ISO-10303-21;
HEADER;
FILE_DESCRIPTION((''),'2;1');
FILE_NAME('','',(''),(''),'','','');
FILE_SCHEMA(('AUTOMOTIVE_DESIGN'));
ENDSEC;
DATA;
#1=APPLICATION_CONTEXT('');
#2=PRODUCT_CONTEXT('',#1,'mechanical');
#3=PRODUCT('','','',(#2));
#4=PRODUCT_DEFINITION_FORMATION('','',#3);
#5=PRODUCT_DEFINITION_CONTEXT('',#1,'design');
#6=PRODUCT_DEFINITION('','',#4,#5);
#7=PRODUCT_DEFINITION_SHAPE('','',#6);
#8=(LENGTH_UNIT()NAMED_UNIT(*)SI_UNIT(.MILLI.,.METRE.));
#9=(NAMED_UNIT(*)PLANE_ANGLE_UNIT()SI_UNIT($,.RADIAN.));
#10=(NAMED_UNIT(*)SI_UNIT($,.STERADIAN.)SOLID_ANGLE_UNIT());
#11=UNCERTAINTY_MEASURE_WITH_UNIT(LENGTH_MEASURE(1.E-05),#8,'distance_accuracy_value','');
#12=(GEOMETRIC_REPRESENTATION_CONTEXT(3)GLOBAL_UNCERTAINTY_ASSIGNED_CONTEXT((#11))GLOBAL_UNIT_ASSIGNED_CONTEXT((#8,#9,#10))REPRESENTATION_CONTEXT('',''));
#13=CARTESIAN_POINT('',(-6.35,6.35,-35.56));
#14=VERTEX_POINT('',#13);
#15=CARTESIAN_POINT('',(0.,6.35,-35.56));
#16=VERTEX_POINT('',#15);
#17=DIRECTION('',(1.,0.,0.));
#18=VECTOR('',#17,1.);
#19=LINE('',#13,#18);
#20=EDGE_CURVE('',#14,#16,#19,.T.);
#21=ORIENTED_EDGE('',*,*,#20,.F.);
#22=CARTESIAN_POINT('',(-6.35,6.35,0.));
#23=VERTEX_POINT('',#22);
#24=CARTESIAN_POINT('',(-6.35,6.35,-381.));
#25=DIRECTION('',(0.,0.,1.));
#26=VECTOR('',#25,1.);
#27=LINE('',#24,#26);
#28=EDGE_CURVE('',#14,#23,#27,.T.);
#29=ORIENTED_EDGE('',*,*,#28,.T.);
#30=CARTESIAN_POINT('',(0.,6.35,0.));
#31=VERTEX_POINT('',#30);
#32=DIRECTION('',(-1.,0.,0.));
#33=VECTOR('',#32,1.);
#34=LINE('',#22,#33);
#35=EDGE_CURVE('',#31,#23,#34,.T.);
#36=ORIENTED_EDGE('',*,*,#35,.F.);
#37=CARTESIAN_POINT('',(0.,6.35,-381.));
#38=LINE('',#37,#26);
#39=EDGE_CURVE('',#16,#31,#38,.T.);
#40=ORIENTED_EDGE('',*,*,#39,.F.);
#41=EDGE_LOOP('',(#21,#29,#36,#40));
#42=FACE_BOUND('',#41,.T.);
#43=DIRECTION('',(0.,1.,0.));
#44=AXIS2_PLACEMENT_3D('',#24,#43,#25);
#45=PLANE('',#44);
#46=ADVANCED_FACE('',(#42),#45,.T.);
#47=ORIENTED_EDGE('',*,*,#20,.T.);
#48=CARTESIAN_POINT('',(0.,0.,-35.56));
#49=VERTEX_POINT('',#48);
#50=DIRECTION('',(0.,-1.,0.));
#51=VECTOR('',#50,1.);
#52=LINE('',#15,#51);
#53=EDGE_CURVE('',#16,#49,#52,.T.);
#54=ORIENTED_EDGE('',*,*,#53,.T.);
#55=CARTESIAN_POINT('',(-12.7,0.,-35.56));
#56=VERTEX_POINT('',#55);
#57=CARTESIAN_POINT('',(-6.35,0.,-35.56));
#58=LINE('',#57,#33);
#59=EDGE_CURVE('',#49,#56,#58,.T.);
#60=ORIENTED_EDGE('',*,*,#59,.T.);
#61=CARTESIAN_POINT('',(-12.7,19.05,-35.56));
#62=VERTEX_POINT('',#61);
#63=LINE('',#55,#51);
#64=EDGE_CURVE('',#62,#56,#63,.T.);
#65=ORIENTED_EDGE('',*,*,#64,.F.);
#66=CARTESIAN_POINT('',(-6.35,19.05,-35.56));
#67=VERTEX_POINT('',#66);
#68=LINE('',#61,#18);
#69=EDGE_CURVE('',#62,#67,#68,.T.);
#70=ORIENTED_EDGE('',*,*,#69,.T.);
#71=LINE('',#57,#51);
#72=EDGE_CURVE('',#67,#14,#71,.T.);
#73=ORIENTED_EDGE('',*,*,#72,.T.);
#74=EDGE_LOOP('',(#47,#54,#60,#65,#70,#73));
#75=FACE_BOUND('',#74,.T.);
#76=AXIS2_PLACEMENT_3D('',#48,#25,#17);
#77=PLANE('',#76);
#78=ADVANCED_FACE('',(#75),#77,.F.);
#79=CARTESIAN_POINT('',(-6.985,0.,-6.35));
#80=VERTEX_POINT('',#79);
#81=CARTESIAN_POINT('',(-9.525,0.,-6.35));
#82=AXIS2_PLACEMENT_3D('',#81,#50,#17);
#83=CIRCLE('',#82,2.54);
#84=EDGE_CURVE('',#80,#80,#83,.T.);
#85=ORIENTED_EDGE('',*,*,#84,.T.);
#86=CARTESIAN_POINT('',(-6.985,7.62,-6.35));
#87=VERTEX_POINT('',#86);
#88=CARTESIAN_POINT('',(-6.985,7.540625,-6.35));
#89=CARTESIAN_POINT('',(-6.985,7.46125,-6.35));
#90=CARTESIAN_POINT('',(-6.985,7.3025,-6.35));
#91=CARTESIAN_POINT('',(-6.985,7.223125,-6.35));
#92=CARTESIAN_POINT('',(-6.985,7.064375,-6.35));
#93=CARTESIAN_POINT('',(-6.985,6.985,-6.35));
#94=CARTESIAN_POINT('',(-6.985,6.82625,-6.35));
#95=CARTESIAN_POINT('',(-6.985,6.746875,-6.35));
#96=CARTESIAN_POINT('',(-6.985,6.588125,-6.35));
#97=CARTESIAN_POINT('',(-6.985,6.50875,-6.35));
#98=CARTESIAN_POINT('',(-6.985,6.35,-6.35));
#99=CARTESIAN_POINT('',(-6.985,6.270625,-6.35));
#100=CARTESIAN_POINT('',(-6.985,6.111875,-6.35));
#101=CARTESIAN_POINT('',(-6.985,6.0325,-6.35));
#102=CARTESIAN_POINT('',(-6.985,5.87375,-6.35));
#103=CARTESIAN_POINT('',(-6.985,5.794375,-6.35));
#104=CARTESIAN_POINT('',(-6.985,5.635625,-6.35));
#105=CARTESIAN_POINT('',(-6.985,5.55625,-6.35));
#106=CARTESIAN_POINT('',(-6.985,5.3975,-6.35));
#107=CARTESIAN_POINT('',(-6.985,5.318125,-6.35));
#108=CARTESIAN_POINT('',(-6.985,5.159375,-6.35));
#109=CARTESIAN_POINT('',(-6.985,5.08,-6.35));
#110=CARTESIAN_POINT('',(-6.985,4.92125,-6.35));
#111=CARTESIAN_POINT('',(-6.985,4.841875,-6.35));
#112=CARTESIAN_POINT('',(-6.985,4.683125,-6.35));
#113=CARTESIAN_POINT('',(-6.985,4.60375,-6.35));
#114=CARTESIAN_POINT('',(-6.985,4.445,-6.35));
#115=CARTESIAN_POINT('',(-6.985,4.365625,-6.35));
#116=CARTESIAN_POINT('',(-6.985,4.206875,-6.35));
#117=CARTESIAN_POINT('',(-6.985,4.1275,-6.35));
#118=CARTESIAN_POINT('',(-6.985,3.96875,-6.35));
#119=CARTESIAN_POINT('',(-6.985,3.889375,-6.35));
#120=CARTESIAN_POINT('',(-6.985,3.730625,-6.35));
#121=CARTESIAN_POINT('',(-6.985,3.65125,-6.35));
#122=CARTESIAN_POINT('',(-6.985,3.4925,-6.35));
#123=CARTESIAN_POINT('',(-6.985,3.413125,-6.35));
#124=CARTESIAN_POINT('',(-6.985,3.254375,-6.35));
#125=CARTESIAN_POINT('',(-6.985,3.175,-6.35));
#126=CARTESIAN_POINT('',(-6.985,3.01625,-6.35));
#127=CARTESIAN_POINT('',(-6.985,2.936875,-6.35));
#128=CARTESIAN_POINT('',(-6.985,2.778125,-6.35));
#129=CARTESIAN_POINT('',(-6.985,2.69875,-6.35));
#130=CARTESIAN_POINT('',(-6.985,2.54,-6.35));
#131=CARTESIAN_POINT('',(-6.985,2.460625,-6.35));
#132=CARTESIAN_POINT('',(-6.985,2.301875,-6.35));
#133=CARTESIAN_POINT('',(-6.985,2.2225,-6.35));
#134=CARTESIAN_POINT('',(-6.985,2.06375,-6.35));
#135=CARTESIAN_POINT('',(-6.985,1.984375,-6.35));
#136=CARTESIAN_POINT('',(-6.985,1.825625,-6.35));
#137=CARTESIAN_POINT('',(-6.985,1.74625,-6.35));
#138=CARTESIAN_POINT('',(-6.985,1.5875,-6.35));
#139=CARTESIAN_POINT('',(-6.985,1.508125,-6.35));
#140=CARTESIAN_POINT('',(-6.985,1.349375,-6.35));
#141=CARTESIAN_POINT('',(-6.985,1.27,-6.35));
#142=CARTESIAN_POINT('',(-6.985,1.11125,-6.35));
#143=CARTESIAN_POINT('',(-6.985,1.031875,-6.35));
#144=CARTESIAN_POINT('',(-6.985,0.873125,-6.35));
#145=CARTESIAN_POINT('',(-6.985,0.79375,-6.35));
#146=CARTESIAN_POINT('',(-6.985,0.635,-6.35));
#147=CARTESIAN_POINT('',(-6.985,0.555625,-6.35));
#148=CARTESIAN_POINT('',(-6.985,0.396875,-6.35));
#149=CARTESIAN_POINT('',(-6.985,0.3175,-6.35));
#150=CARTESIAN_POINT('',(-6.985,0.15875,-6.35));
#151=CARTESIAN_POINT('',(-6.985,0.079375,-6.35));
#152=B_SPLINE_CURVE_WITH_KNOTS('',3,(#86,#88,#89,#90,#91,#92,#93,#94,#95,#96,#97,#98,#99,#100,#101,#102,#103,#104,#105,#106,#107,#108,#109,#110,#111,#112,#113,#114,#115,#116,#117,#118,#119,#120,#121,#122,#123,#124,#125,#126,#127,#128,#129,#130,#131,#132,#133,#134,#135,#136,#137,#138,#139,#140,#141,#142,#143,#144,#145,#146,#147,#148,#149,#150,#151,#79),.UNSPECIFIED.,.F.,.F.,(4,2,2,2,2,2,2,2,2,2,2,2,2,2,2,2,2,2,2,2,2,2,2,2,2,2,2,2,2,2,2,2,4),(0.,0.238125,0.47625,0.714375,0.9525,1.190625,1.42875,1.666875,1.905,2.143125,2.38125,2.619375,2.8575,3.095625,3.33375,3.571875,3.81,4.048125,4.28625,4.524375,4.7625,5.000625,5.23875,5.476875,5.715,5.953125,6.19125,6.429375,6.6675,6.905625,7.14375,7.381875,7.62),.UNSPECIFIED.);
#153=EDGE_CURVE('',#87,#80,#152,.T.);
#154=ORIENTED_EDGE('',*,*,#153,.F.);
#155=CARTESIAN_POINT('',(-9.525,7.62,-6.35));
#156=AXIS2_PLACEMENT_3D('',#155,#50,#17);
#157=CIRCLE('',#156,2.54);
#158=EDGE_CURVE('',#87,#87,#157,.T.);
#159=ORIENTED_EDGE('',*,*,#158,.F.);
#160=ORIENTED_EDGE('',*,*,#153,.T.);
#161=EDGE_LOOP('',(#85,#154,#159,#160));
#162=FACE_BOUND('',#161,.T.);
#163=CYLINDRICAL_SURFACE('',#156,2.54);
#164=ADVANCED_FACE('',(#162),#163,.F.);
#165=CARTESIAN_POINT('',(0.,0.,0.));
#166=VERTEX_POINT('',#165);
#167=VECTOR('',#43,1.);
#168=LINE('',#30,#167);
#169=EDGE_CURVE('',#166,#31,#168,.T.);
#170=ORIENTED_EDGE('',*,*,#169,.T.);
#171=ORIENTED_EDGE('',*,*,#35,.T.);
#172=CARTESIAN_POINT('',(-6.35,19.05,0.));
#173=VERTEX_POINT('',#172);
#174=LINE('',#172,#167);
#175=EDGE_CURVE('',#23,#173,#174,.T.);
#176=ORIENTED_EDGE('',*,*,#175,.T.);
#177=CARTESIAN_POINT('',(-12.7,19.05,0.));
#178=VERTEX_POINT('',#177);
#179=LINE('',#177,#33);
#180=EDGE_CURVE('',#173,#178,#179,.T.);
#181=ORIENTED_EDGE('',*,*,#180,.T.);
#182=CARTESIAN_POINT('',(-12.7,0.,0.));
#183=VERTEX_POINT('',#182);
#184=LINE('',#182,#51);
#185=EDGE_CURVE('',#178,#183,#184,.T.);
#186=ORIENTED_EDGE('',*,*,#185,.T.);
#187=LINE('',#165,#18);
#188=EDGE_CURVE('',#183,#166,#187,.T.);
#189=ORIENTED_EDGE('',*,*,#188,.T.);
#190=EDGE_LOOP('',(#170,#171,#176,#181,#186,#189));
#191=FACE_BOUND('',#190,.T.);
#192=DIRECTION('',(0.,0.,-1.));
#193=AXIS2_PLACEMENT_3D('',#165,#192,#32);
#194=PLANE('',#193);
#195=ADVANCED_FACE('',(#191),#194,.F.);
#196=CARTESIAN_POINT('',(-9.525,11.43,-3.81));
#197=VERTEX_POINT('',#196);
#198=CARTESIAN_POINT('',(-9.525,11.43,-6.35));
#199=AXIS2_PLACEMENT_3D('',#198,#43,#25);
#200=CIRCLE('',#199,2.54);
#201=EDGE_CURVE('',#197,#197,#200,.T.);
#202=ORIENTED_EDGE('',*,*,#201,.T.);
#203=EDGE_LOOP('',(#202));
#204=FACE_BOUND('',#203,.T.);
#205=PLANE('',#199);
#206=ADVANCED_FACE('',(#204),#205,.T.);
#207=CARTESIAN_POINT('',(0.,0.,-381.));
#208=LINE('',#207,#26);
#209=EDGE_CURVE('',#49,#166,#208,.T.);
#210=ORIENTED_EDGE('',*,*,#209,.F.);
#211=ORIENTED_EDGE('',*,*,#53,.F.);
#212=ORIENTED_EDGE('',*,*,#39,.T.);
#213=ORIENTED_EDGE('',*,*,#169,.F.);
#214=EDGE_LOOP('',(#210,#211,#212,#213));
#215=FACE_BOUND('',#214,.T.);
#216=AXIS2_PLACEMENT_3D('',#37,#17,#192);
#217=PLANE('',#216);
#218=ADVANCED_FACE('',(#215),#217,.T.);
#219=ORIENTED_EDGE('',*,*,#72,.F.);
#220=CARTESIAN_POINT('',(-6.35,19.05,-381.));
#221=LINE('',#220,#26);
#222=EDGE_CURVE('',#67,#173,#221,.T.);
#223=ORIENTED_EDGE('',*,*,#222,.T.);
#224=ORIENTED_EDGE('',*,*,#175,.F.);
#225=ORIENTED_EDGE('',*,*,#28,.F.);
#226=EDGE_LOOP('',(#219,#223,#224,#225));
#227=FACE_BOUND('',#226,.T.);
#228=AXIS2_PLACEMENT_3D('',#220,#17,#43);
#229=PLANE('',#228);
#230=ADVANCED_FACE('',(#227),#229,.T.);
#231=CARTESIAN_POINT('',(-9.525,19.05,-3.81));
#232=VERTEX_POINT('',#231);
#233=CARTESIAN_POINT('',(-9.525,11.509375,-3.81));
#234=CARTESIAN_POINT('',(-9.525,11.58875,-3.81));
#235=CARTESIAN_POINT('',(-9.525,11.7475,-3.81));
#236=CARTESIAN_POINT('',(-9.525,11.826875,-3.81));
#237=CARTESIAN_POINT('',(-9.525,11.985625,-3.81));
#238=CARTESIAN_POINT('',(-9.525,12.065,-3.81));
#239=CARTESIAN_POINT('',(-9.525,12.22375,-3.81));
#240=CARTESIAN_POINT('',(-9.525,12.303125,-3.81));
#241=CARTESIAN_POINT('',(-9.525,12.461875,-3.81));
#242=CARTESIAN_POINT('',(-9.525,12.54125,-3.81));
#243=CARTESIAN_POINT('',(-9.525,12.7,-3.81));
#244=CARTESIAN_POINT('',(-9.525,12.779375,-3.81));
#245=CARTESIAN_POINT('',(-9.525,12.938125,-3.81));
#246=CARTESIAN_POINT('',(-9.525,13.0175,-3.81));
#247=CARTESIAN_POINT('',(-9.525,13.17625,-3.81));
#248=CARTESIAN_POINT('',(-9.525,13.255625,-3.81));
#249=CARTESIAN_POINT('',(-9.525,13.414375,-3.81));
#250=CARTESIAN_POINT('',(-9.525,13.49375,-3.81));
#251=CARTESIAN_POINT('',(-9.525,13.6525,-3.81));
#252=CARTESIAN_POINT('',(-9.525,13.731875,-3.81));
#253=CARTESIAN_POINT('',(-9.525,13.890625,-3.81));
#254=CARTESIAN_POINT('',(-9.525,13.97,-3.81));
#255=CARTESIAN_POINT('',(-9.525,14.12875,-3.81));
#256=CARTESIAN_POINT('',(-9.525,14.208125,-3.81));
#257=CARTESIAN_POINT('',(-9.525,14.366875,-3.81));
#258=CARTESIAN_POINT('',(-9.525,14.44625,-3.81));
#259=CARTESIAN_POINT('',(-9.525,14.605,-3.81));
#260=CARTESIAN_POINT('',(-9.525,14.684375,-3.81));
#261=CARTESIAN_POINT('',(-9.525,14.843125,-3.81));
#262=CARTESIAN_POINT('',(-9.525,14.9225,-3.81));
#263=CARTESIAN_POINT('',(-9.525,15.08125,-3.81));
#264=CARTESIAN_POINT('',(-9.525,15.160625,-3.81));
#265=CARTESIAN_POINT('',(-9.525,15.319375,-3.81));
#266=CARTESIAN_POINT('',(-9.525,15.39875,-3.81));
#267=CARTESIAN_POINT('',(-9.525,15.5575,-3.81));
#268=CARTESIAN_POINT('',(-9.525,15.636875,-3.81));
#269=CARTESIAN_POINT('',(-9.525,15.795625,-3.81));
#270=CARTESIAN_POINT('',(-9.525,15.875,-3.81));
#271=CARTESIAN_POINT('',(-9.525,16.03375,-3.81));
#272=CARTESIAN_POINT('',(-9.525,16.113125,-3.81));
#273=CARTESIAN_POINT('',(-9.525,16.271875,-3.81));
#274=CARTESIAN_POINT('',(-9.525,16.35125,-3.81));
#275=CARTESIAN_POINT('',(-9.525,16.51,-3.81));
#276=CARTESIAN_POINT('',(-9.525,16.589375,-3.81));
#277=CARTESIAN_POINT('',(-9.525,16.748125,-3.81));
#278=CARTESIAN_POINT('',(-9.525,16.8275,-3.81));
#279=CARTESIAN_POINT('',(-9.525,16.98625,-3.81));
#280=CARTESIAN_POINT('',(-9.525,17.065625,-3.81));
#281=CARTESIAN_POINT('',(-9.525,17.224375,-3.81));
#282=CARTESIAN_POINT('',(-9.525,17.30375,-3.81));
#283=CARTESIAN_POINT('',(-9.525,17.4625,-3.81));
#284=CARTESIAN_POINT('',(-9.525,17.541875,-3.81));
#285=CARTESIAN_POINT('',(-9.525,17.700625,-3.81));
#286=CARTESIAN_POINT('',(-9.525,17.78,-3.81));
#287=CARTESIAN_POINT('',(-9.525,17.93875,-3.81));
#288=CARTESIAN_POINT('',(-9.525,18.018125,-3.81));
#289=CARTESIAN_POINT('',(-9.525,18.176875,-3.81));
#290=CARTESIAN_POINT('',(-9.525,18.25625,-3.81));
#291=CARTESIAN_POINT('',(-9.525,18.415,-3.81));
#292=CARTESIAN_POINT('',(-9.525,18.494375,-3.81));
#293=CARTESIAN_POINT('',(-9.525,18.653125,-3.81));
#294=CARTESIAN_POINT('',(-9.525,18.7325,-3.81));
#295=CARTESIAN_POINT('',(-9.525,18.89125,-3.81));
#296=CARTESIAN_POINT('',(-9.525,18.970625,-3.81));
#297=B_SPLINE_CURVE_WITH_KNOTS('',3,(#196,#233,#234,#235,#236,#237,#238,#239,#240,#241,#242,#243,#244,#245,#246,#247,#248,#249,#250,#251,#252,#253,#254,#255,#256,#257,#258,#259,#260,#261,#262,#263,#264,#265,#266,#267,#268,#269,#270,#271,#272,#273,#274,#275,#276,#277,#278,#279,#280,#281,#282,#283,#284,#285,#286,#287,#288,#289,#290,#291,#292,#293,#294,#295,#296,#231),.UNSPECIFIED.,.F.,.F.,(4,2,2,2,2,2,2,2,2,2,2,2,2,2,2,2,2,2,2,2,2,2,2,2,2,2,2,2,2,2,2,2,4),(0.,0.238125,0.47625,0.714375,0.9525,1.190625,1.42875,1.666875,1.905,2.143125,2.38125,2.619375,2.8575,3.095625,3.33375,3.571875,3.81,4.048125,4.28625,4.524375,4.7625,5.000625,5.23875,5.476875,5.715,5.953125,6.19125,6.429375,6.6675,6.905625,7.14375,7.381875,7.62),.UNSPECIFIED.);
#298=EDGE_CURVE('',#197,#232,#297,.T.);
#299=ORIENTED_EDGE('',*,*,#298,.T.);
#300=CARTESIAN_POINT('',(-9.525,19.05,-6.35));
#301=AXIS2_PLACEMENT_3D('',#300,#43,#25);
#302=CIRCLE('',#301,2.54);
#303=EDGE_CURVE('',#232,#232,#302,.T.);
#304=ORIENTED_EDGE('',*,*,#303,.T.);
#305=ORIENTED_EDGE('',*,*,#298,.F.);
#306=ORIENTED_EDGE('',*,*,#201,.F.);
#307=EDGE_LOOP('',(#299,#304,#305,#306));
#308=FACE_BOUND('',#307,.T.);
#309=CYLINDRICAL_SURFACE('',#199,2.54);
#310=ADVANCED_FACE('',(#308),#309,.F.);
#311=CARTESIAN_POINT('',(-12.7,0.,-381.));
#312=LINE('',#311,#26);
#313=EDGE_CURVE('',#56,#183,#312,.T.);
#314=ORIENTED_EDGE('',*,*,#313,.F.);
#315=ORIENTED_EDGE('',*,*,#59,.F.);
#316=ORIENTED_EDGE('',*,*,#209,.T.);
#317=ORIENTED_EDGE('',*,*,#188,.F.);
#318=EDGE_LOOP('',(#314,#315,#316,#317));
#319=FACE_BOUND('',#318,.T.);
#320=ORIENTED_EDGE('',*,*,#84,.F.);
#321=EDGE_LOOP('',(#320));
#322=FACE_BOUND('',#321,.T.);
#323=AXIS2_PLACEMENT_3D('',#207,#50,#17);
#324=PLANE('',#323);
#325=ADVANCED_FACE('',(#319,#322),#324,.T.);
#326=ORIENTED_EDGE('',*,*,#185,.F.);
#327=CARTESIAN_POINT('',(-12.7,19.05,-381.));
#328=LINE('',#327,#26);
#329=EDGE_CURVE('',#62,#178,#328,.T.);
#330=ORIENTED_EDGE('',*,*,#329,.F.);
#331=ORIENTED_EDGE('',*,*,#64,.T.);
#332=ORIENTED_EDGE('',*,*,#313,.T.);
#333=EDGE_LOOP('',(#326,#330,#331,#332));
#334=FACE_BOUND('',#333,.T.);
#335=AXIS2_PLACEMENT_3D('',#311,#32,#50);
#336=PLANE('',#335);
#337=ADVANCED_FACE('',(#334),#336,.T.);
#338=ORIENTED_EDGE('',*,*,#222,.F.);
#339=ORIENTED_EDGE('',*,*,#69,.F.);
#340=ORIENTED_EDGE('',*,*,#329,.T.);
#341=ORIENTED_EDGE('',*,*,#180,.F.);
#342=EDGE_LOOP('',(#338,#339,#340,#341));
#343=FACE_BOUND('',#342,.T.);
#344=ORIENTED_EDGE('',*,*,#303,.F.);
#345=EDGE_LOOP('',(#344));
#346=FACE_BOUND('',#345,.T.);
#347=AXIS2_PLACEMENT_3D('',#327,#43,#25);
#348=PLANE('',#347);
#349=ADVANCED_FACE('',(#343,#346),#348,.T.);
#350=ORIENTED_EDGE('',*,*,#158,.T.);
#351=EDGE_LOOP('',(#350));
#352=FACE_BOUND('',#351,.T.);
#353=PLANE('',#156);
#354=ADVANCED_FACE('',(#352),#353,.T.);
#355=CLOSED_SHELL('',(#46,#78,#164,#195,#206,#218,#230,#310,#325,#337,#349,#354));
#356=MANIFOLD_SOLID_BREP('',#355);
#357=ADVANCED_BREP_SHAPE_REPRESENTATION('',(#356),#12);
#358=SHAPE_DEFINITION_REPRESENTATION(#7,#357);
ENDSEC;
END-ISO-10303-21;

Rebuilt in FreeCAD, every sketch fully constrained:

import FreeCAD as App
import Part
import Sketcher

V = App.Vector
Q = App.Units.Quantity

doc = App.newDocument("Part")
body = doc.addObject("PartDesign::Body", "Body")

sketch1 = doc.addObject("Sketcher::SketchObject", "Sketch")
body.addObject(sketch1)
sketch1.AttachmentSupport = (doc.XY_Plane, [""])
sketch1.MapMode = "FlatFace"
sketch1.addGeometry([
    Part.LineSegment(V(-13, 0, 0), V(0, 0, 0)),
    Part.LineSegment(V(0, 0, 0), V(0, 6, 0)),
    Part.LineSegment(V(0, 6, 0), V(-6, 6, 0)),
    Part.LineSegment(V(-6, 6, 0), V(-6, 19, 0)),
    Part.LineSegment(V(-6, 19, 0), V(-13, 19, 0)),
    Part.LineSegment(V(-13, 19, 0), V(-13, 0, 0)),
], False)
sketch1.addConstraint([
    Sketcher.Constraint("Coincident", 0, 2, 1, 1),
    Sketcher.Constraint("Coincident", 1, 2, 2, 1),
    Sketcher.Constraint("Coincident", 2, 2, 3, 1),
    Sketcher.Constraint("Coincident", 3, 2, 4, 1),
    Sketcher.Constraint("Coincident", 4, 2, 5, 1),
    Sketcher.Constraint("Coincident", 5, 2, 0, 1),
    Sketcher.Constraint("Horizontal", 0),
    Sketcher.Constraint("Vertical", 1),
    Sketcher.Constraint("Horizontal", 2),
    Sketcher.Constraint("Vertical", 3),
    Sketcher.Constraint("Horizontal", 4),
    Sketcher.Constraint("Vertical", 5),
    Sketcher.Constraint("Coincident", 0, 2, -1, 1),
    Sketcher.Constraint("Equal", 2, 4),
    Sketcher.Constraint("Equal", 4, 1),
    Sketcher.Constraint("Equal", 0, 3),
    Sketcher.Constraint("DistanceX", 0, 1, 0, 2, Q("0.5 in")),
])
pad1 = doc.addObject("PartDesign::Pad", "Pad")
body.addObject(pad1)
pad1.Profile = sketch1
pad1.Length = Q("15 in")
pad1.Reversed = True

sketch2 = doc.addObject("Sketcher::SketchObject", "Sketch001")
body.addObject(sketch2)
sketch2.AttachmentSupport = (doc.YZ_Plane, [""])
sketch2.MapMode = "FlatFace"
sketch2.AttachmentOffset = App.Placement(V(0, 0, -0.5 * 25.4), App.Rotation())
sketch2.addGeometry(Part.Circle(V(12.1, -365.8, 0), V(0, 0, 1), 3.2), False)
sketch2.addConstraint([
    Sketcher.Constraint("Diameter", 0, Q("0.25 in")),
    Sketcher.Constraint("DistanceY", 0, 3, -1, 1, Q("14.4 in")),
    Sketcher.Constraint("DistanceX", -1, 1, 0, 3, Q("0.475 in")),
])
pocket1 = doc.addObject("PartDesign::Pocket", "Pocket")
body.addObject(pocket1)
pocket1.Profile = sketch2
pocket1.Type = "UpToFirst"
pocket1.Reversed = True

sketch3 = doc.addObject("Sketcher::SketchObject", "Sketch002")
body.addObject(sketch3)
sketch3.AttachmentSupport = (doc.XZ_Plane, [""])
sketch3.MapMode = "FlatFace"
sketch3.AttachmentOffset = App.Placement(V(0, 0, -0.75 * 25.4), App.Rotation())
sketch3.addGeometry([
    Part.Circle(V(-9.5, -6.3, 0), V(0, 0, 1), 2.5),
    Part.Circle(V(-9.5, -374.6, 0), V(0, 0, 1), 2.5),
], False)
sketch3.addConstraint([
    Sketcher.Constraint("Equal", 0, 1),
    Sketcher.Constraint("Vertical", 0, 3, 1, 3),
    Sketcher.Constraint("Diameter", 0, Q("0.2 in")),
    Sketcher.Constraint("DistanceY", 1, 3, 0, 3, Q("14.5 in")),
    Sketcher.Constraint("DistanceY", 0, 3, -1, 1, Q("0.25 in")),
    Sketcher.Constraint("DistanceX", 0, 3, -1, 1, Q("0.375 in")),
])
pocket2 = doc.addObject("PartDesign::Pocket", "Pocket001")
body.addObject(pocket2)
pocket2.Profile = sketch3
pocket2.Length = Q("0.3 in")
pocket2.Reversed = True

sketch4 = doc.addObject("Sketcher::SketchObject", "Sketch003")
body.addObject(sketch4)
sketch4.AttachmentSupport = (doc.XZ_Plane, [""])
sketch4.MapMode = "FlatFace"
sketch4.AttachmentOffset = App.Placement(V(0, 0, -0.3 * 25.4), App.Rotation())
sketch4.addGeometry([
    Part.Circle(V(-9.5, -374.6, 0), V(0, 0, 1), 2.5),
    Part.Circle(V(-9.5, -6.3, 0), V(0, 0, 1), 2.5),
], False)
sketch4.addConstraint([
    Sketcher.Constraint("Equal", 0, 1),
    Sketcher.Constraint("Vertical", 0, 3, 1, 3),
    Sketcher.Constraint("Diameter", 0, Q("0.2 in")),
    Sketcher.Constraint("DistanceY", 0, 3, 1, 3, Q("14.5 in")),
    Sketcher.Constraint("DistanceY", 0, 3, -1, 1, Q("14.75 in")),
    Sketcher.Constraint("DistanceX", 0, 3, -1, 1, Q("0.375 in")),
])
pocket3 = doc.addObject("PartDesign::Pocket", "Pocket002")
body.addObject(pocket3)
pocket3.Profile = sketch4
pocket3.Length = Q("0.3 in")
pocket3.Reversed = True

sketch5 = doc.addObject("Sketcher::SketchObject", "Sketch004")
body.addObject(sketch5)
sketch5.AttachmentSupport = (doc.XY_Plane, [""])
sketch5.MapMode = "FlatFace"
sketch5.AttachmentOffset = App.Placement(V(0, 0, -15 * 25.4), App.Rotation())
sketch5.addGeometry([
    Part.LineSegment(V(0, 6, 0), V(0, 0, 0)),
    Part.LineSegment(V(0, 0, 0), V(-6, 0, 0)),
    Part.LineSegment(V(-6, 0, 0), V(-6, 6, 0)),
    Part.LineSegment(V(-6, 6, 0), V(0, 6, 0)),
], False)
sketch5.addConstraint([
    Sketcher.Constraint("Coincident", 0, 2, 1, 1),
    Sketcher.Constraint("Coincident", 1, 2, 2, 1),
    Sketcher.Constraint("Coincident", 2, 2, 3, 1),
    Sketcher.Constraint("Coincident", 3, 2, 0, 1),
    Sketcher.Constraint("Vertical", 0),
    Sketcher.Constraint("Horizontal", 1),
    Sketcher.Constraint("Vertical", 2),
    Sketcher.Constraint("Horizontal", 3),
    Sketcher.Constraint("Coincident", 0, 2, -1, 1),
    Sketcher.Constraint("Equal", 3, 0),
    Sketcher.Constraint("DistanceX", 1, 2, 1, 1, Q("0.25 in")),
])
pocket4 = doc.addObject("PartDesign::Pocket", "Pocket003")
body.addObject(pocket4)
pocket4.Profile = sketch5
pocket4.Length = Q("13.6 in")
pocket4.Reversed = True

sketch6 = doc.addObject("Sketcher::SketchObject", "Sketch005")
body.addObject(sketch6)
sketch6.AttachmentSupport = (doc.YZ_Plane, [""])
sketch6.MapMode = "FlatFace"
sketch6.AttachmentOffset = App.Placement(V(0, 0, -0.25 * 25.4), App.Rotation())
sketch6.addGeometry([
    Part.LineSegment(V(19, -36, 0), V(0, -36, 0)),
    Part.LineSegment(V(0, -36, 0), V(0, -381, 0)),
    Part.LineSegment(V(0, -381, 0), V(19, -381, 0)),
    Part.LineSegment(V(19, -381, 0), V(19, -36, 0)),
], False)
sketch6.addConstraint([
    Sketcher.Constraint("Coincident", 0, 2, 1, 1),
    Sketcher.Constraint("Coincident", 1, 2, 2, 1),
    Sketcher.Constraint("Coincident", 2, 2, 3, 1),
    Sketcher.Constraint("Coincident", 3, 2, 0, 1),
    Sketcher.Constraint("Horizontal", 0),
    Sketcher.Constraint("Vertical", 1),
    Sketcher.Constraint("Horizontal", 2),
    Sketcher.Constraint("Vertical", 3),
    Sketcher.Constraint("PointOnObject", 0, 2, -2),
    Sketcher.Constraint("DistanceY", 1, 2, 1, 1, Q("13.6 in")),
    Sketcher.Constraint("DistanceY", 1, 2, -1, 1, Q("15 in")),
    Sketcher.Constraint("DistanceX", 0, 2, 0, 1, Q("0.75 in")),
])
pocket5 = doc.addObject("PartDesign::Pocket", "Pocket004")
body.addObject(pocket5)
pocket5.Profile = sketch6
pocket5.Type = "ThroughAll"

doc.recompute()
